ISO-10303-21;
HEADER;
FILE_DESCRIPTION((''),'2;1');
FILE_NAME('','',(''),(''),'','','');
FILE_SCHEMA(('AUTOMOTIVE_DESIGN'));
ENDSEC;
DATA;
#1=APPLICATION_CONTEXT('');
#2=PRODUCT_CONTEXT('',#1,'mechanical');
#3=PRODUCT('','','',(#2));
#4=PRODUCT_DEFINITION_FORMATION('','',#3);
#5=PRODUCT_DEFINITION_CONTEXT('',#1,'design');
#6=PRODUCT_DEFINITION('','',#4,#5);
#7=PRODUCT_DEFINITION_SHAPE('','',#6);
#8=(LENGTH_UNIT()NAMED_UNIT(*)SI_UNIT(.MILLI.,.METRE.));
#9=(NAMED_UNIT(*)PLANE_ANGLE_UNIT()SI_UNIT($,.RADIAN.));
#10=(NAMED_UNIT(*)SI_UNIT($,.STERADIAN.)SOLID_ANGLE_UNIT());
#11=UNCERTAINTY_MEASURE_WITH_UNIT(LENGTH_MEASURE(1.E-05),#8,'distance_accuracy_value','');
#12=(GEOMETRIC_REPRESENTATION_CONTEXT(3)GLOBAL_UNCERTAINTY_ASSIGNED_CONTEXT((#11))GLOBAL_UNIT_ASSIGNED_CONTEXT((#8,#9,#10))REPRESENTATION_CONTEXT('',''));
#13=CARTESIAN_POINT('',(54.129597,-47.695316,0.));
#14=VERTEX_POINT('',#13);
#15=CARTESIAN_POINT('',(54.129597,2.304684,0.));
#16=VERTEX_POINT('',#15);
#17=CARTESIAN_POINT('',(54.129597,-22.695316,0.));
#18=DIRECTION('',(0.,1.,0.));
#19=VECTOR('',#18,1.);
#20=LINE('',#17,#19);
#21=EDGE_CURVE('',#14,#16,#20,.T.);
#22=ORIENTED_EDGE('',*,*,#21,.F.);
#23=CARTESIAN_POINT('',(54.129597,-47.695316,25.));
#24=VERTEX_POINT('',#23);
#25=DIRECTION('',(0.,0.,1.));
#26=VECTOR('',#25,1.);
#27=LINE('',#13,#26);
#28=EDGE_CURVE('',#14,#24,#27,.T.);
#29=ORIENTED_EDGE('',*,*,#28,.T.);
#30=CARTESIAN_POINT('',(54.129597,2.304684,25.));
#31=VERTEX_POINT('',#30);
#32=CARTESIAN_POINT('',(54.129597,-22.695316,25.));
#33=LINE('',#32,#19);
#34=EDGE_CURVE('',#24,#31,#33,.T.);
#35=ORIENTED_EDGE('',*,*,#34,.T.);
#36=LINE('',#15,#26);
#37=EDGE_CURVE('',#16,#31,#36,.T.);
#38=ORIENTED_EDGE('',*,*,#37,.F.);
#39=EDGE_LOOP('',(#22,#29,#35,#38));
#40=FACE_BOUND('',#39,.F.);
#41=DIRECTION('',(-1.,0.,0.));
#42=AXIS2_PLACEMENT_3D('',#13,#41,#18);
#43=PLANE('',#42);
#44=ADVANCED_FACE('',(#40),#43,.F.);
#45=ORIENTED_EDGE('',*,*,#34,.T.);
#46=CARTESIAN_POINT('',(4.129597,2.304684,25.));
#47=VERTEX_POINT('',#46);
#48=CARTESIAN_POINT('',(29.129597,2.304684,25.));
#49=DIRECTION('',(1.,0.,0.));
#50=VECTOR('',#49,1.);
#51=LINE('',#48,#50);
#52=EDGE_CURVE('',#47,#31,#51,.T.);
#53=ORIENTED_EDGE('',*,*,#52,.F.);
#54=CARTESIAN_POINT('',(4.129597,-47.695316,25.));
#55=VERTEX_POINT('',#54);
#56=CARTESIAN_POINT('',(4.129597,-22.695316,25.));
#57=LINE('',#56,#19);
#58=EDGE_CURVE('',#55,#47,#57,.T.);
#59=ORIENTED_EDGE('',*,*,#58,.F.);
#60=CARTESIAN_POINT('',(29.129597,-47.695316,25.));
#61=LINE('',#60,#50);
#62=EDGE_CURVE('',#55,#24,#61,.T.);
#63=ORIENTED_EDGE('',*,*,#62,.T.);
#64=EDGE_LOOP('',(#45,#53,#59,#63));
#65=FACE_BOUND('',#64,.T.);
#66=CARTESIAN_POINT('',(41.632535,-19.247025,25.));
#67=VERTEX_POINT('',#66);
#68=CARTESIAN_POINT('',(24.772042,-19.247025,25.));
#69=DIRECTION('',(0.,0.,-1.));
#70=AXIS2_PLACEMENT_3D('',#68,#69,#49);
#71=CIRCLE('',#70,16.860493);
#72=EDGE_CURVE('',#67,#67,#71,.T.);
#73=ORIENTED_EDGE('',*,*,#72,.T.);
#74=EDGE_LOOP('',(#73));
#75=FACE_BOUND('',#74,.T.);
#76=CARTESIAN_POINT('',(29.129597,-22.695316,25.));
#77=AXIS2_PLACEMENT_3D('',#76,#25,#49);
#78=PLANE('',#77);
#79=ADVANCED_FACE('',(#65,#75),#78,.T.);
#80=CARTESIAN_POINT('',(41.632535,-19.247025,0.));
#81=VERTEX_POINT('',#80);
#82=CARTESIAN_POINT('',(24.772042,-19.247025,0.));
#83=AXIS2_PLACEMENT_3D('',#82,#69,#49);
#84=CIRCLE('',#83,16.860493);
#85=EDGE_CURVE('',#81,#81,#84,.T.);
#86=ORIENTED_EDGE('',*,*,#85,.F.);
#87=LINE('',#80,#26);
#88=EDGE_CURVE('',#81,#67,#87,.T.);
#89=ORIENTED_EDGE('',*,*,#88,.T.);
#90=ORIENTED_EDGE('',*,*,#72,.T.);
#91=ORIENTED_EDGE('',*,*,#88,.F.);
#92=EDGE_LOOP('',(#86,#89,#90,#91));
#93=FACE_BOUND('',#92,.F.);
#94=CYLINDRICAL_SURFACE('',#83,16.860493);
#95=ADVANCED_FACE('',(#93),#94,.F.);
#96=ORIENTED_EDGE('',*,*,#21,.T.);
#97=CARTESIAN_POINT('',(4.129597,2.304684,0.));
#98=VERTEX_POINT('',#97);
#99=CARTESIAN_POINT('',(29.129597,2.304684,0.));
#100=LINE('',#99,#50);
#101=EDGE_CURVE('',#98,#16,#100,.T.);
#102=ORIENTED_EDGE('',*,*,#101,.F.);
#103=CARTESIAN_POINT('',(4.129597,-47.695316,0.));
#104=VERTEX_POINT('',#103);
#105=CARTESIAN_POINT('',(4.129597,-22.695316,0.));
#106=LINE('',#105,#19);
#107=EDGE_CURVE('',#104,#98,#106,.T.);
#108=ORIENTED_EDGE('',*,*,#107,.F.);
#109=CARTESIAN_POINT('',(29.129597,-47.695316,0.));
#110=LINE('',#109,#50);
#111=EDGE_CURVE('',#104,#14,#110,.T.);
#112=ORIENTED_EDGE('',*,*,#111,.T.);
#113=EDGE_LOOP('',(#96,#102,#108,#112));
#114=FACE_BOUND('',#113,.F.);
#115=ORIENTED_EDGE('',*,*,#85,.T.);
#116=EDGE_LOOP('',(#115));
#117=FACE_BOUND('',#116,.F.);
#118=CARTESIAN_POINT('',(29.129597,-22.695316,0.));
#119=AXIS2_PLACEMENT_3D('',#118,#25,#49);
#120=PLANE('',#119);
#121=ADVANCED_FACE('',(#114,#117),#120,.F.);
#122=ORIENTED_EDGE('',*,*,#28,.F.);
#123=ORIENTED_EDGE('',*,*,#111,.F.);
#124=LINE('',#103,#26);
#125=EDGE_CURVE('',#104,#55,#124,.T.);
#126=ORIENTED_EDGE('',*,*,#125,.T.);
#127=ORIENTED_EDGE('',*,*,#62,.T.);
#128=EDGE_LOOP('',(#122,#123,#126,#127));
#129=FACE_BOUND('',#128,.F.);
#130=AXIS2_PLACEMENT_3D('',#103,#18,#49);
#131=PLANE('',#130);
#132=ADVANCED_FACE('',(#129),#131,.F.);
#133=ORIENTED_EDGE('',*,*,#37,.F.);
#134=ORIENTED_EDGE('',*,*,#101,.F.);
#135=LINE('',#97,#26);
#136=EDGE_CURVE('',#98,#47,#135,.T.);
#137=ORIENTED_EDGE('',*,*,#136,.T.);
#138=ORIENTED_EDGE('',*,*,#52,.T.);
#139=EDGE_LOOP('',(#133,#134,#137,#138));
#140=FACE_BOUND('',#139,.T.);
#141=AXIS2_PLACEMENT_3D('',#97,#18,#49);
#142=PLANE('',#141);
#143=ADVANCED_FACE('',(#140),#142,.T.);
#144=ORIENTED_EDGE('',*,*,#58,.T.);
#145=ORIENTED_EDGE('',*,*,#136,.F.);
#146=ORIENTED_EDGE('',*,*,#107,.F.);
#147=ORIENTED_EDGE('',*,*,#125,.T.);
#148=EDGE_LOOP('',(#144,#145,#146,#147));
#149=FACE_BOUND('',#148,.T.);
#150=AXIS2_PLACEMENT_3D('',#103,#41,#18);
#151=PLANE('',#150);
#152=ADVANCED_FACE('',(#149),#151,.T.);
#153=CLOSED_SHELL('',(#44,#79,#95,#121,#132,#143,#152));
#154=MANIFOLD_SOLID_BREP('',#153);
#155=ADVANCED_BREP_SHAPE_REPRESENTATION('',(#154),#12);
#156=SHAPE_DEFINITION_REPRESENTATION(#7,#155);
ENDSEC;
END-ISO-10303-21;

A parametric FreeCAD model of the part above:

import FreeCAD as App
import Part
import Sketcher

V = App.Vector
Q = App.Units.Quantity

doc = App.newDocument("Part")
body = doc.addObject("PartDesign::Body", "Body")

sketch1 = body.newObject("Sketcher::SketchObject", "Sketch")
sketch1.AttachmentSupport = (doc.getObject("XY_Plane"), [""])
sketch1.MapMode = "FlatFace"
sketch1.addGeometry([
    Part.LineSegment(V(4, 2, 0), V(4, -48, 0)),
    Part.LineSegment(V(4, -48, 0), V(54, -48, 0)),
    Part.LineSegment(V(54, -48, 0), V(54, 2, 0)),
    Part.LineSegment(V(54, 2, 0), V(4, 2, 0)),
], False)
sketch1.addConstraint([
    Sketcher.Constraint("Coincident", 0, 2, 1, 1),
    Sketcher.Constraint("Coincident", 1, 2, 2, 1),
    Sketcher.Constraint("Coincident", 2, 2, 3, 1),
    Sketcher.Constraint("Coincident", 3, 2, 0, 1),
    Sketcher.Constraint("Vertical", 0),
    Sketcher.Constraint("Horizontal", 1),
    Sketcher.Constraint("Vertical", 2),
    Sketcher.Constraint("Horizontal", 3),
    Sketcher.Constraint("Equal", 3, 0),
    Sketcher.Constraint("DistanceX", 1, 1, 1, 2, Q("50 mm")),
    Sketcher.Constraint("DistanceX", -1, 1, 0, 2, Q("4.129597 mm")),
    Sketcher.Constraint("DistanceY", 0, 2, -1, 1, Q("47.695316 mm")),
])
pad1 = body.newObject("PartDesign::Pad", "Pad")
pad1.Profile = sketch1
pad1.Length = 25

sketch2 = body.newObject("Sketcher::SketchObject", "Sketch001")
sketch2.AttachmentSupport = (doc.getObject("XY_Plane"), [""])
sketch2.MapMode = "FlatFace"
sketch2.addGeometry(Part.Circle(V(25, -19, 0), V(0, 0, 1), 17), False)
sketch2.addConstraint([
    Sketcher.Constraint("Diameter", 0, Q("33.720986 mm")),
    Sketcher.Constraint("DistanceX", -1, 1, 0, 3, Q("24.772042 mm")),
    Sketcher.Constraint("DistanceY", 0, 3, -1, 1, Q("19.247025 mm")),
])
pocket1 = body.newObject("PartDesign::Pocket", "Pocket")
pocket1.Profile = sketch2
pocket1.Type = "ThroughAll"
pocket1.Reversed = True

doc.recompute()
